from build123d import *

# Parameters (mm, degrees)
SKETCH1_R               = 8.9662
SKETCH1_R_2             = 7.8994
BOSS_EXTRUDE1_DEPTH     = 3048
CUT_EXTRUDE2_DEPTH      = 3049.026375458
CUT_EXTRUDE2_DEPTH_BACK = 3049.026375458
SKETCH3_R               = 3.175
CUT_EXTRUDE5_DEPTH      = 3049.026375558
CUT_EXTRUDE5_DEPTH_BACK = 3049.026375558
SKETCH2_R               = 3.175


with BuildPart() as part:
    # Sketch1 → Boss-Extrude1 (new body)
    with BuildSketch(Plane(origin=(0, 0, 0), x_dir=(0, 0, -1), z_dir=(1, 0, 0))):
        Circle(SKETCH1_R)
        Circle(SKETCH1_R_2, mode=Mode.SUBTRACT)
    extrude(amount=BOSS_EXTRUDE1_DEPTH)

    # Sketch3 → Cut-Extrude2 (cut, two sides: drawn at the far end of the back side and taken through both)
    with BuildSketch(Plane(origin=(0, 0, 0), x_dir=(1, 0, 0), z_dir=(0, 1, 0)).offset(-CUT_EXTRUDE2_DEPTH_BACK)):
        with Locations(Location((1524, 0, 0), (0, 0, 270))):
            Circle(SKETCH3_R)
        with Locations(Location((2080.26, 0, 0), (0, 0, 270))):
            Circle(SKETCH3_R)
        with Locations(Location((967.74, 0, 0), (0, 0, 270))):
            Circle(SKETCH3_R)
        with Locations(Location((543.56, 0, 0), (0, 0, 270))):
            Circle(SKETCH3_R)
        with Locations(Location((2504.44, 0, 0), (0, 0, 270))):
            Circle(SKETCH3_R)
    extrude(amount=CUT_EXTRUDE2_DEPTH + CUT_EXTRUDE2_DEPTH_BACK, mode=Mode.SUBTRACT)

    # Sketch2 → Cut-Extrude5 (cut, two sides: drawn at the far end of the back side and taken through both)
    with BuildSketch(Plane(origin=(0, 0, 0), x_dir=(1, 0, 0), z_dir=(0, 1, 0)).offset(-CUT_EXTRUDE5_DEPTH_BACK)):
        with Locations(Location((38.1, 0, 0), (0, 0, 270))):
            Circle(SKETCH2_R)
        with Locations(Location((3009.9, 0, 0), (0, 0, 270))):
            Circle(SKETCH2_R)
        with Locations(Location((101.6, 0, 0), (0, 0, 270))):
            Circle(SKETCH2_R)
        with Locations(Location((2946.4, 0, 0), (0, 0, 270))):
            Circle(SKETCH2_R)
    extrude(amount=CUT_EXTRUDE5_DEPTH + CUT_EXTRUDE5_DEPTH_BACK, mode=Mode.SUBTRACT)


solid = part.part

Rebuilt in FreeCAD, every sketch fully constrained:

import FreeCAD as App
import Part
import Sketcher
Q = App.Units.Quantity

doc = App.newDocument("Part")
params = doc.addObject("Spreadsheet::Sheet", "Params")
for row, (alias, value) in enumerate([
    ("sketch1_diameter", "0.706 in"),
    ("sketch1_diameter2", "0.622 in"),
    ("pad1_length", "120 in"),
    ("sketch2_diameter", "0.25 in"),
    ("sketch3_diameter", "0.25 in"),
], start=1):
    params.set(f"A{row}", alias)
    params.set(f"B{row}", "=" + value)
    params.setAlias(f"B{row}", alias)

body = doc.addObject("PartDesign::Body", "Body")

# Sketch on YZ plane
sketch1 = body.newObject("Sketcher::SketchObject", "Sketch")
sketch1.AttachmentSupport = (doc.getObject("YZ_Plane"), [""])
sketch1.MapMode = "FlatFace"
sketch1.addGeometry([
    Part.Circle(App.Vector(0, 0, 0), App.Vector(0, 0, 1), 8.9662),
    Part.Circle(App.Vector(0, 0, 0), App.Vector(0, 0, 1), 7.8994),
], False)
sketch1.addConstraint([
    Sketcher.Constraint("Coincident", 0, 3, -1, 1),
    Sketcher.Constraint("Coincident", 1, 3, -1, 1),
    Sketcher.Constraint("Diameter", 0, Q("0.706 in")),
    Sketcher.Constraint("Diameter", 1, Q("0.622 in")),
])
sketch1.setExpression("Constraints[2]", "Params.sketch1_diameter")
sketch1.setExpression("Constraints[3]", "Params.sketch1_diameter2")
pad1 = body.newObject("PartDesign::Pad", "Pad")
pad1.Profile = sketch1
pad1.setExpression("Length", "Params.pad1_length")

# Sketch on XZ plane
sketch2 = body.newObject("Sketcher::SketchObject", "Sketch001")
sketch2.AttachmentSupport = (doc.getObject("XZ_Plane"), [""])
sketch2.MapMode = "FlatFace"
sketch2.addGeometry([
    Part.Circle(App.Vector(1524, 0, 0), App.Vector(0, 0, 1), 3.175),  # 0
    Part.Circle(App.Vector(2080.26, 0, 0), App.Vector(0, 0, 1), 3.175),  # 1
    Part.Circle(App.Vector(967.74, 0, 0), App.Vector(0, 0, 1), 3.175),  # 2
    Part.Circle(App.Vector(543.56, 0, 0), App.Vector(0, 0, 1), 3.175),  # 3
    Part.Circle(App.Vector(2504.44, 0, 0), App.Vector(0, 0, 1), 3.175),  # 4
], False)
sketch2.addConstraint([
    Sketcher.Constraint("Equal", 0, 1),
    Sketcher.Constraint("Equal", 1, 2),
    Sketcher.Constraint("Equal", 2, 3),
    Sketcher.Constraint("Equal", 3, 4),
    Sketcher.Constraint("PointOnObject", 0, 3, -1),
    Sketcher.Constraint("PointOnObject", 1, 3, -1),
    Sketcher.Constraint("PointOnObject", 2, 3, -1),
    Sketcher.Constraint("PointOnObject", 3, 3, -1),
    Sketcher.Constraint("PointOnObject", 4, 3, -1),
    Sketcher.Constraint("Diameter", 0, Q("0.25 in")),
    Sketcher.Constraint("DistanceX", -1, 1, 0, 3, Q("60 in")),
    Sketcher.Constraint("DistanceX", -1, 1, 1, 3, Q("81.9 in")),
    Sketcher.Constraint("DistanceX", -1, 1, 2, 3, Q("38.1 in")),
    Sketcher.Constraint("DistanceX", -1, 1, 3, 3, Q("21.4 in")),
    Sketcher.Constraint("DistanceX", -1, 1, 4, 3, Q("98.6 in")),
])
sketch2.setExpression("Constraints[9]", "Params.sketch2_diameter")
pocket1 = body.newObject("PartDesign::Pocket", "Pocket")
pocket1.Profile = sketch2
pocket1.Type = "ThroughAll"
pocket1.Midplane = True

# Sketch on XZ plane
sketch3 = body.newObject("Sketcher::SketchObject", "Sketch002")
sketch3.AttachmentSupport = (doc.getObject("XZ_Plane"), [""])
sketch3.MapMode = "FlatFace"
sketch3.addGeometry([
    Part.Circle(App.Vector(38.1, 0, 0), App.Vector(0, 0, 1), 3.175),
    Part.Circle(App.Vector(3009.9, 0, 0), App.Vector(0, 0, 1), 3.175),
    Part.Circle(App.Vector(101.6, 0, 0), App.Vector(0, 0, 1), 3.175),
    Part.Circle(App.Vector(2946.4, 0, 0), App.Vector(0, 0, 1), 3.175),
], False)
sketch3.addConstraint([
    Sketcher.Constraint("Equal", 0, 1),
    Sketcher.Constraint("Equal", 1, 2),
    Sketcher.Constraint("Equal", 2, 3),
    Sketcher.Constraint("PointOnObject", 0, 3, -1),
    Sketcher.Constraint("PointOnObject", 1, 3, -1),
    Sketcher.Constraint("PointOnObject", 2, 3, -1),
    Sketcher.Constraint("PointOnObject", 3, 3, -1),
    Sketcher.Constraint("Diameter", 0, Q("0.25 in")),
    Sketcher.Constraint("DistanceX", -1, 1, 2, 3, Q("4 in")),
    Sketcher.Constraint("DistanceX", -1, 1, 3, 3, Q("116 in")),
    Sketcher.Constraint("DistanceX", 0, 3, 1, 3, Q("117 in")),
    Sketcher.Constraint("DistanceX", -1, 1, 0, 3, Q("1.5 in")),
])
sketch3.setExpression("Constraints[7]", "Params.sketch3_diameter")
pocket2 = body.newObject("PartDesign::Pocket", "Pocket001")
pocket2.Profile = sketch3
pocket2.Type = "ThroughAll"
pocket2.Midplane = True

doc.recompute()
